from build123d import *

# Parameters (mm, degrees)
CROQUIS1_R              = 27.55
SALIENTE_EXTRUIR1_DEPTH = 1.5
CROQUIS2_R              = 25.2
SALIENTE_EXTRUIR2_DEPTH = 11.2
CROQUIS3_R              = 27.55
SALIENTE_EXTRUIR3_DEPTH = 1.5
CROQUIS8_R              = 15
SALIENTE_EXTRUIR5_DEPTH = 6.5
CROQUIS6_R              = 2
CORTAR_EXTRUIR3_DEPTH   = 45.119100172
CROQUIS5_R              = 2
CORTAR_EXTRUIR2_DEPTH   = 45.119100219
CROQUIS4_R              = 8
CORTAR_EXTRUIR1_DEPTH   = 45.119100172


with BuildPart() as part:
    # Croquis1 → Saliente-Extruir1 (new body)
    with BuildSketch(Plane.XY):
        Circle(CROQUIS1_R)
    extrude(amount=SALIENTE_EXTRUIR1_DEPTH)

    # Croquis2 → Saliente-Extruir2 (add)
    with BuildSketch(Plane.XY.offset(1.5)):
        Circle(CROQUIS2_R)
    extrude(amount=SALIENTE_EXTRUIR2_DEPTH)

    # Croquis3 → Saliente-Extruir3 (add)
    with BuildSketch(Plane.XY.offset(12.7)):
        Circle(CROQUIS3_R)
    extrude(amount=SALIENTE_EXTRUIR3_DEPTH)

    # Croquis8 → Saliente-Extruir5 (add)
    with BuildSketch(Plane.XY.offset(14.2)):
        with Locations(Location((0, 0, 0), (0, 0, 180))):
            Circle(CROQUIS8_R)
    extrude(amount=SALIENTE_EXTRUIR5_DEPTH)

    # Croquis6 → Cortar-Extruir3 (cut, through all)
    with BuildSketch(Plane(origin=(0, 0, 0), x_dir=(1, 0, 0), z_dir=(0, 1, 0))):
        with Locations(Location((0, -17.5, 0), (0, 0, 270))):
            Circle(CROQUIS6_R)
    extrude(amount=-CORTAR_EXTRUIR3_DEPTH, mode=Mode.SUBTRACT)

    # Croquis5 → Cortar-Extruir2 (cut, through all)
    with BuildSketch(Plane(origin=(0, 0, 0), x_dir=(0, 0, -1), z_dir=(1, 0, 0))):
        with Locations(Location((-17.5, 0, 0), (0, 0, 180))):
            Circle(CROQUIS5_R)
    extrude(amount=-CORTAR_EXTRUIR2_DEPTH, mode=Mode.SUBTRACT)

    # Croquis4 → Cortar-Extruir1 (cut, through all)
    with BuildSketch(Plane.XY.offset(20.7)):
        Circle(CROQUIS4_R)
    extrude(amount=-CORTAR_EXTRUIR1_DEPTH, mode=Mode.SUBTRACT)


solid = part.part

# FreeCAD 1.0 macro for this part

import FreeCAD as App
import Part
import Sketcher

V = App.Vector
Q = App.Units.Quantity

doc = App.newDocument("Part")
body = doc.addObject("PartDesign::Body", "Body")

# Sketch on XY plane
sketch1 = body.newObject("Sketcher::SketchObject", "Sketch")
sketch1.AttachmentSupport = (doc.getObject("XY_Plane"), [""])
sketch1.MapMode = "FlatFace"
sketch1.addGeometry(Part.Circle(V(0, 0, 0), V(0, 0, 1), 28), False)
sketch1.addConstraint([
    Sketcher.Constraint("Coincident", 0, 3, -1, 1),
    Sketcher.Constraint("Diameter", 0, Q("55.1 mm")),
])
pad1 = body.newObject("PartDesign::Pad", "Pad")
pad1.Profile = sketch1
pad1.Length = 1.5

# Sketch on XY plane
sketch2 = body.newObject("Sketcher::SketchObject", "Sketch001")
sketch2.AttachmentSupport = (doc.getObject("XY_Plane"), [""])
sketch2.MapMode = "FlatFace"
sketch2.AttachmentOffset = App.Placement(V(0, 0, 1.5), App.Rotation())
sketch2.addGeometry(Part.Circle(V(0, 0, 0), V(0, 0, 1), 25), False)
sketch2.addConstraint([
    Sketcher.Constraint("Coincident", 0, 3, -1, 1),
    Sketcher.Constraint("Diameter", 0, Q("50.4 mm")),
])
pad2 = body.newObject("PartDesign::Pad", "Pad001")
pad2.Profile = sketch2
pad2.Length = 11.2

# Sketch on XY plane
sketch3 = body.newObject("Sketcher::SketchObject", "Sketch002")
sketch3.AttachmentSupport = (doc.getObject("XY_Plane"), [""])
sketch3.MapMode = "FlatFace"
sketch3.AttachmentOffset = App.Placement(V(0, 0, 12.7), App.Rotation())
sketch3.addGeometry(Part.Circle(V(0, 0, 0), V(0, 0, 1), 28), False)
sketch3.addConstraint([
    Sketcher.Constraint("Coincident", 0, 3, -1, 1),
    Sketcher.Constraint("Diameter", 0, Q("55.1 mm")),
])
pad3 = body.newObject("PartDesign::Pad", "Pad002")
pad3.Profile = sketch3
pad3.Length = 1.5

# Sketch on XY plane
sketch4 = body.newObject("Sketcher::SketchObject", "Sketch003")
sketch4.AttachmentSupport = (doc.getObject("XY_Plane"), [""])
sketch4.MapMode = "FlatFace"
sketch4.AttachmentOffset = App.Placement(V(0, 0, 14.2), App.Rotation())
sketch4.addGeometry(Part.Circle(V(0, 0, 0), V(0, 0, 1), 15), False)
sketch4.addConstraint([
    Sketcher.Constraint("Coincident", 0, 3, -1, 1),
    Sketcher.Constraint("Diameter", 0, Q("30 mm")),
])
pad4 = body.newObject("PartDesign::Pad", "Pad003")
pad4.Profile = sketch4
pad4.Length = 6.5

# Sketch on XZ plane
sketch5 = body.newObject("Sketcher::SketchObject", "Sketch004")
sketch5.AttachmentSupport = (doc.getObject("XZ_Plane"), [""])
sketch5.MapMode = "FlatFace"
sketch5.addGeometry(Part.Circle(V(0, 17.5, 0), V(0, 0, 1), 2), False)
sketch5.addConstraint([
    Sketcher.Constraint("PointOnObject", 0, 3, -2),
    Sketcher.Constraint("Diameter", 0, Q("4 mm")),
    Sketcher.Constraint("DistanceY", -1, 1, 0, 3, Q("17.5 mm")),
])
pocket1 = body.newObject("PartDesign::Pocket", "Pocket")
pocket1.Profile = sketch5
pocket1.Type = "ThroughAll"
pocket1.Reversed = True

# Sketch on YZ plane
sketch6 = body.newObject("Sketcher::SketchObject", "Sketch005")
sketch6.AttachmentSupport = (doc.getObject("YZ_Plane"), [""])
sketch6.MapMode = "FlatFace"
sketch6.addGeometry(Part.Circle(V(0, 17.5, 0), V(0, 0, 1), 2), False)
sketch6.addConstraint([
    Sketcher.Constraint("PointOnObject", 0, 3, -2),
    Sketcher.Constraint("Diameter", 0, Q("4 mm")),
    Sketcher.Constraint("DistanceY", -1, 1, 0, 3, Q("17.5 mm")),
])
pocket2 = body.newObject("PartDesign::Pocket", "Pocket001")
pocket2.Profile = sketch6
pocket2.Type = "ThroughAll"

# Sketch on XY plane
sketch7 = body.newObject("Sketcher::SketchObject", "Sketch006")
sketch7.AttachmentSupport = (doc.getObject("XY_Plane"), [""])
sketch7.MapMode = "FlatFace"
sketch7.AttachmentOffset = App.Placement(V(0, 0, 20.7), App.Rotation())
sketch7.addGeometry(Part.Circle(V(0, 0, 0), V(0, 0, 1), 8), False)
sketch7.addConstraint([
    Sketcher.Constraint("Coincident", 0, 3, -1, 1),
    Sketcher.Constraint("Diameter", 0, Q("16 mm")),
])
pocket3 = body.newObject("PartDesign::Pocket", "Pocket002")
pocket3.Profile = sketch7
pocket3.Type = "ThroughAll"

doc.recompute()
